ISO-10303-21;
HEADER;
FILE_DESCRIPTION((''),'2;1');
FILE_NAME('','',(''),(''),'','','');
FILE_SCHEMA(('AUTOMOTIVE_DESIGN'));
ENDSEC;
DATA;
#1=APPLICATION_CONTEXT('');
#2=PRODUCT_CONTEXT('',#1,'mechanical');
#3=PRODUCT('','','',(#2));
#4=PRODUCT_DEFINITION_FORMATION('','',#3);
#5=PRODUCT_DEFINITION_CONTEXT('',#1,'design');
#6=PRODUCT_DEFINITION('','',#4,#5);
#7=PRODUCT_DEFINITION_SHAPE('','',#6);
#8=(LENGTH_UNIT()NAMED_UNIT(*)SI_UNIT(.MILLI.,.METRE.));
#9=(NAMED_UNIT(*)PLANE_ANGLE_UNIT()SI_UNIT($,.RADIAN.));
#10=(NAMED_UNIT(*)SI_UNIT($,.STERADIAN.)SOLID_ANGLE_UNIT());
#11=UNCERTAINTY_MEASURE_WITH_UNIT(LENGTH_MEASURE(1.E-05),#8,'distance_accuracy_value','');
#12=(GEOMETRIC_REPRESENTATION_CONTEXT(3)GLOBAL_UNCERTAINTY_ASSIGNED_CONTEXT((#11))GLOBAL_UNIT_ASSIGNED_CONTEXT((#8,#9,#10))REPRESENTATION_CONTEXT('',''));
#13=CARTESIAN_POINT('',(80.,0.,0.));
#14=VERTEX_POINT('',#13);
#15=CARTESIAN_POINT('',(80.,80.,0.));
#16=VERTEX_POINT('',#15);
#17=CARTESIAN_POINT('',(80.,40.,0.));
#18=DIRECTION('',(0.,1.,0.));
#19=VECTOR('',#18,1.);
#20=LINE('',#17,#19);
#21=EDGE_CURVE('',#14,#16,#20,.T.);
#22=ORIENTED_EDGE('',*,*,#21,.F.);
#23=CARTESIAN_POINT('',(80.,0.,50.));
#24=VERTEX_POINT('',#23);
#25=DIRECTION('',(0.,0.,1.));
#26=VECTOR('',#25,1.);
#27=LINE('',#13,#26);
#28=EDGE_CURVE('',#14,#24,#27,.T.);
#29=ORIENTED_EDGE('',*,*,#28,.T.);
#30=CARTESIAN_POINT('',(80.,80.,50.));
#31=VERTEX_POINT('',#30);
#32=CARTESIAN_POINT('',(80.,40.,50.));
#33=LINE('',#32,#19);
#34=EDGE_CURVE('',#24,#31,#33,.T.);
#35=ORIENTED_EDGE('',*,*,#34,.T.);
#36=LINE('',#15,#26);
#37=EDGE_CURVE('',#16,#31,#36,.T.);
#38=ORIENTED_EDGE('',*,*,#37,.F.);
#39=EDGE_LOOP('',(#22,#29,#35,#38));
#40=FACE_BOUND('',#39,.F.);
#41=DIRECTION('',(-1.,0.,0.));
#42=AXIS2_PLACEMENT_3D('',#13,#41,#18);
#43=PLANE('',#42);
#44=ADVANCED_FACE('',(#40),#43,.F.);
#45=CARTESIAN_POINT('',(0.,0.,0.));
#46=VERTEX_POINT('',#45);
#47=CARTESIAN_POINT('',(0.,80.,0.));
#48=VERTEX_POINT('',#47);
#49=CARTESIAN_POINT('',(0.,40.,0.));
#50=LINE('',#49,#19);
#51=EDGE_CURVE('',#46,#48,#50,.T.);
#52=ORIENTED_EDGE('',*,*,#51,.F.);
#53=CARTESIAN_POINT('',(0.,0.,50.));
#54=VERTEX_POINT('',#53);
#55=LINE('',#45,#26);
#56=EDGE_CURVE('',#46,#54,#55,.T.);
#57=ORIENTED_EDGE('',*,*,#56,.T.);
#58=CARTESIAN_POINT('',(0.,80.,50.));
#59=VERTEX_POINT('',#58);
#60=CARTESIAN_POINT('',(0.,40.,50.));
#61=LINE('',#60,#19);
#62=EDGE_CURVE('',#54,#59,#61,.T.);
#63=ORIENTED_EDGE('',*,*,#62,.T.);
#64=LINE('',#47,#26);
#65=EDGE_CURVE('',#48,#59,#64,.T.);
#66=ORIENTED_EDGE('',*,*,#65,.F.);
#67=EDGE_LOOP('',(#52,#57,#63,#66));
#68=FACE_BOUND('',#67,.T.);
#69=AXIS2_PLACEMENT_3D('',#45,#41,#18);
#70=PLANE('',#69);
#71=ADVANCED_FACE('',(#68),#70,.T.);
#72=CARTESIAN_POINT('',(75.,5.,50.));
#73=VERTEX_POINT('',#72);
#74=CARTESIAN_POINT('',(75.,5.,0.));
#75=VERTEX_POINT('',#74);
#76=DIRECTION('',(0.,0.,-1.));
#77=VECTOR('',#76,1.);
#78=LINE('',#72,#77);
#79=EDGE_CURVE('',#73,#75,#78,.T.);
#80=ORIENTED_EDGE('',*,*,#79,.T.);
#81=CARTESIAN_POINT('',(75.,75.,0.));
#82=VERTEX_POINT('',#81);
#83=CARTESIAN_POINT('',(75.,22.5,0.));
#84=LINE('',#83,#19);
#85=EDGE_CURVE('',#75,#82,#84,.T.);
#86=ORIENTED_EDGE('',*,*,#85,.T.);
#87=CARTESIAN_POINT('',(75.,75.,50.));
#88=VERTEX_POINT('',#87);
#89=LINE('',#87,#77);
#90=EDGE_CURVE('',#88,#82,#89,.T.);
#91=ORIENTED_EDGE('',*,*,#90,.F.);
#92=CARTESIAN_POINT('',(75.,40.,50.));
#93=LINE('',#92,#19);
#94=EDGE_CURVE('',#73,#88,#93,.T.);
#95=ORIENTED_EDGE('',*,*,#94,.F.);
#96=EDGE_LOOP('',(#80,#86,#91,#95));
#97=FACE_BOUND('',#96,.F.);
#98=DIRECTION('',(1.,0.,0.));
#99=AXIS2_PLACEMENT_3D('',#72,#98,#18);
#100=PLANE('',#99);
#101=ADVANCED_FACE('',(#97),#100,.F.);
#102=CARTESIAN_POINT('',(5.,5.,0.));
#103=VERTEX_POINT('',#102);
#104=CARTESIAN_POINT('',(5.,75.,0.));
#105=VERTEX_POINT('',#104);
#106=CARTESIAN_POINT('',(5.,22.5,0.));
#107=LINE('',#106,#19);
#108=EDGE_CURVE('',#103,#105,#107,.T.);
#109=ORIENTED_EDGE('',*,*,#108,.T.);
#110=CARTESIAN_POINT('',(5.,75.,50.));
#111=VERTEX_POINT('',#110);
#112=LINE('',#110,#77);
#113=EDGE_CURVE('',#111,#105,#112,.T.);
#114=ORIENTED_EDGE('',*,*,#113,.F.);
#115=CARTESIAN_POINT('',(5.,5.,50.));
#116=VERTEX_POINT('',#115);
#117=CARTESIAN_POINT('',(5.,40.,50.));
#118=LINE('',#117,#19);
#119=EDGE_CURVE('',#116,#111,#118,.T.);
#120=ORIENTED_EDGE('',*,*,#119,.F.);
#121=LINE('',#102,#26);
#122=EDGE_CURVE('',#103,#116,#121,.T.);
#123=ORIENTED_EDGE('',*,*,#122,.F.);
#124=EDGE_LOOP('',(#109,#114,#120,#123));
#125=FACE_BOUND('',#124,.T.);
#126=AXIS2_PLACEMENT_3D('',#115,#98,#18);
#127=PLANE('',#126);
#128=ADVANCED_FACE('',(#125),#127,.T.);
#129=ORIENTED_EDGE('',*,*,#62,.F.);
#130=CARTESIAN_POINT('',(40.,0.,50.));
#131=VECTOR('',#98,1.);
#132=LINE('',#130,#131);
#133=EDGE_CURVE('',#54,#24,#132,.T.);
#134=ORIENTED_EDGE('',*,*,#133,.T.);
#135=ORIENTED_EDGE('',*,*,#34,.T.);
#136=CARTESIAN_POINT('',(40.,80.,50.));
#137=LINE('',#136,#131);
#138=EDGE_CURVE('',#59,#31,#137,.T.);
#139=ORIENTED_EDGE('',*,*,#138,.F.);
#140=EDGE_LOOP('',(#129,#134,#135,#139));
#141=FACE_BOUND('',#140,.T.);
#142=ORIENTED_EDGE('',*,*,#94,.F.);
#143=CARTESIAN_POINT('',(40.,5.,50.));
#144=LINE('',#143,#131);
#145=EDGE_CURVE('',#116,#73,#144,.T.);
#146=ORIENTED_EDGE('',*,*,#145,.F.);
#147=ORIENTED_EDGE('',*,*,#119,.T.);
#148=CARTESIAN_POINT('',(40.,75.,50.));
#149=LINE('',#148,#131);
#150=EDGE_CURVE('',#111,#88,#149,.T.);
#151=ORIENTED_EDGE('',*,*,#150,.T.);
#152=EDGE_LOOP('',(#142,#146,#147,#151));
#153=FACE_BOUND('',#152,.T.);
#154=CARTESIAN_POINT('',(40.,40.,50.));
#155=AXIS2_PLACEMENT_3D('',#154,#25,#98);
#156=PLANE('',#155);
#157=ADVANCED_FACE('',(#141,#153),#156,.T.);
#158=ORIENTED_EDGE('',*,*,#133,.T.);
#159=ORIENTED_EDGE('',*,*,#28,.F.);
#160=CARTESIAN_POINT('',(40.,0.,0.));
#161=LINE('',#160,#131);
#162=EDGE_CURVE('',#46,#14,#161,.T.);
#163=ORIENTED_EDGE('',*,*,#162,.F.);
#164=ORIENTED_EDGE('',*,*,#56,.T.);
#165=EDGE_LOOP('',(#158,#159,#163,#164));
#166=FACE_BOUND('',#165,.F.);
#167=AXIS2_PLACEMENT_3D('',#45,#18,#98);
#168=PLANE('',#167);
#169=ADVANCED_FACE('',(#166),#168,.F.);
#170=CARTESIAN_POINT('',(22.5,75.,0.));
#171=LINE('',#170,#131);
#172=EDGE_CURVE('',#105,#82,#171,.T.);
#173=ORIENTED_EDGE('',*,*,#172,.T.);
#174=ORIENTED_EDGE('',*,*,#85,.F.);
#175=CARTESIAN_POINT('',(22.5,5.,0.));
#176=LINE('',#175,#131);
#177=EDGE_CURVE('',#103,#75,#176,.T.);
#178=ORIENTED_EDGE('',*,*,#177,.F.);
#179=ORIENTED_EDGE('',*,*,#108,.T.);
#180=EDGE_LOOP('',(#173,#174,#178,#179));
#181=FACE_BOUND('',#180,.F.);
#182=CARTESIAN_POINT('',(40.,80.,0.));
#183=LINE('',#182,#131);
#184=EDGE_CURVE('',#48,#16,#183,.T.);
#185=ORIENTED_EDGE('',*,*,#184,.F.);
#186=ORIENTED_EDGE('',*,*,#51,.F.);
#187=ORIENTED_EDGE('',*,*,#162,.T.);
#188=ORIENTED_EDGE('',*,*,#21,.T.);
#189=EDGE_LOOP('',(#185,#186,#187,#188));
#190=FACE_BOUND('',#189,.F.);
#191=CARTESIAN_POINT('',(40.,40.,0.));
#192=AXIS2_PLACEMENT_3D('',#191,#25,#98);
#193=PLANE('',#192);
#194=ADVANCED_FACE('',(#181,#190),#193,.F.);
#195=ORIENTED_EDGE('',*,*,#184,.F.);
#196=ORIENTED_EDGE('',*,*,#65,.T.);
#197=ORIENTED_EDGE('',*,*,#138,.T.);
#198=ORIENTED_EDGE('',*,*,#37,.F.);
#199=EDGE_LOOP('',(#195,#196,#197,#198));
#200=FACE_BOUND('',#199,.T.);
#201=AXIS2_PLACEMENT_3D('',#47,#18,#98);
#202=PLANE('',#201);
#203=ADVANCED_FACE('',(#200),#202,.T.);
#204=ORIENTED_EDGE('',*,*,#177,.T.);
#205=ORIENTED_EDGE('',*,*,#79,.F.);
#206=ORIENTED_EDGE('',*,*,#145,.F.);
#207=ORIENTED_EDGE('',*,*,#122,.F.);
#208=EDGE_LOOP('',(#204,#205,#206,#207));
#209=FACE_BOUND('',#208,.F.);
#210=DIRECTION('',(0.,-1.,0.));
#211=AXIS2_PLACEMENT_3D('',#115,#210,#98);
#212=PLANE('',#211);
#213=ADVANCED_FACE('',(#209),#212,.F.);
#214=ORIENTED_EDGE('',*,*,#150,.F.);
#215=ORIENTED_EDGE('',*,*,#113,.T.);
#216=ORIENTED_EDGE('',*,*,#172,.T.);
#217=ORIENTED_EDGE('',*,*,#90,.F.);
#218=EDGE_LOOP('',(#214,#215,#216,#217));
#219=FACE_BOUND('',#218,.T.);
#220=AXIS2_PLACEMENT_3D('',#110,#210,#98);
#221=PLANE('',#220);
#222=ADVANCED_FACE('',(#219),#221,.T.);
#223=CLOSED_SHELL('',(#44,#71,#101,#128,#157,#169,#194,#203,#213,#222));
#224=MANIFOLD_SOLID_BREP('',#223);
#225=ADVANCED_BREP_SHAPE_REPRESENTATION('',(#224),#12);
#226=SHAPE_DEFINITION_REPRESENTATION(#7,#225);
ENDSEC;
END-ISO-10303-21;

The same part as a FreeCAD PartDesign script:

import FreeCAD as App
import Part
import Sketcher
from FreeCAD import Vector
Q = App.Units.Quantity


def add_polygon(sketch, points):
    """Adds a closed chain of lines whose ends are joined by coincident constraints."""
    first, n = sketch.GeometryCount, len(points)
    for a, b in zip(points, points[1:] + points[:1]):
        sketch.addGeometry(Part.LineSegment(App.Vector(*a, 0), App.Vector(*b, 0)), False)
    for i in range(n):
        sketch.addConstraint(Sketcher.Constraint("Coincident", first + i, 2, first + (i + 1) % n, 1))

doc = App.newDocument("Part")
body = doc.addObject("PartDesign::Body", "Body")

# Sketch on XY plane
sketch1 = body.newObject("Sketcher::SketchObject", "Sketch")
sketch1.AttachmentSupport = (doc.getObject("XY_Plane"), [""])
sketch1.MapMode = "FlatFace"
add_polygon(sketch1, [(0, 80), (0, 0), (80, 0), (80, 80)])  # lines 0-3
sketch1.addConstraint([
    Sketcher.Constraint("Vertical", 0),
    Sketcher.Constraint("Horizontal", 1),
    Sketcher.Constraint("Vertical", 2),
    Sketcher.Constraint("Horizontal", 3),
    Sketcher.Constraint("Coincident", 0, 2, -1, 1),
    Sketcher.Constraint("Equal", 3, 0),
    Sketcher.Constraint("DistanceX", 1, 1, 1, 2, Q("80 mm")),
])
pad1 = body.newObject("PartDesign::Pad", "Pad")
pad1.Profile = sketch1
pad1.Length = 50

# Sketch on XY plane
sketch2 = body.newObject("Sketcher::SketchObject", "Sketch001")
sketch2.AttachmentSupport = (doc.getObject("XY_Plane"), [""])
sketch2.MapMode = "FlatFace"
sketch2.AttachmentOffset = App.Placement(Vector(0, 0, 50), App.Rotation())
add_polygon(sketch2, [(5, 75), (5, 5), (75, 5), (75, 75)])  # lines 0-3
sketch2.addConstraint([
    Sketcher.Constraint("Vertical", 0),
    Sketcher.Constraint("Horizontal", 1),
    Sketcher.Constraint("Vertical", 2),
    Sketcher.Constraint("Horizontal", 3),
    Sketcher.Constraint("Equal", 3, 0),
    Sketcher.Constraint("DistanceX", 1, 1, 1, 2, Q("70 mm")),
    Sketcher.Constraint("DistanceX", -1, 1, 0, 2, Q("5 mm")),
    Sketcher.Constraint("DistanceY", -1, 1, 0, 2, Q("5 mm")),
])
pocket1 = body.newObject("PartDesign::Pocket", "Pocket")
pocket1.Profile = sketch2
pocket1.Length = 40

# Sketch on XY plane
sketch3 = body.newObject("Sketcher::SketchObject", "Sketch002")
sketch3.AttachmentSupport = (doc.getObject("XY_Plane"), [""])
sketch3.MapMode = "FlatFace"
sketch3.AttachmentOffset = App.Placement(Vector(0, 0, 50), App.Rotation())
add_polygon(sketch3, [(5, 75), (5, 5), (75, 5), (75, 75)])  # lines 0-3
sketch3.addConstraint([
    Sketcher.Constraint("Vertical", 0),
    Sketcher.Constraint("Horizontal", 1),
    Sketcher.Constraint("Vertical", 2),
    Sketcher.Constraint("Horizontal", 3),
    Sketcher.Constraint("Equal", 3, 0),
    Sketcher.Constraint("DistanceX", 1, 1, 1, 2, Q("70 mm")),
    Sketcher.Constraint("DistanceX", -1, 1, 0, 2, Q("5 mm")),
    Sketcher.Constraint("DistanceY", -1, 1, 0, 2, Q("5 mm")),
])
pocket2 = body.newObject("PartDesign::Pocket", "Pocket001")
pocket2.Profile = sketch3
pocket2.Type = "ThroughAll"

doc.recompute()
